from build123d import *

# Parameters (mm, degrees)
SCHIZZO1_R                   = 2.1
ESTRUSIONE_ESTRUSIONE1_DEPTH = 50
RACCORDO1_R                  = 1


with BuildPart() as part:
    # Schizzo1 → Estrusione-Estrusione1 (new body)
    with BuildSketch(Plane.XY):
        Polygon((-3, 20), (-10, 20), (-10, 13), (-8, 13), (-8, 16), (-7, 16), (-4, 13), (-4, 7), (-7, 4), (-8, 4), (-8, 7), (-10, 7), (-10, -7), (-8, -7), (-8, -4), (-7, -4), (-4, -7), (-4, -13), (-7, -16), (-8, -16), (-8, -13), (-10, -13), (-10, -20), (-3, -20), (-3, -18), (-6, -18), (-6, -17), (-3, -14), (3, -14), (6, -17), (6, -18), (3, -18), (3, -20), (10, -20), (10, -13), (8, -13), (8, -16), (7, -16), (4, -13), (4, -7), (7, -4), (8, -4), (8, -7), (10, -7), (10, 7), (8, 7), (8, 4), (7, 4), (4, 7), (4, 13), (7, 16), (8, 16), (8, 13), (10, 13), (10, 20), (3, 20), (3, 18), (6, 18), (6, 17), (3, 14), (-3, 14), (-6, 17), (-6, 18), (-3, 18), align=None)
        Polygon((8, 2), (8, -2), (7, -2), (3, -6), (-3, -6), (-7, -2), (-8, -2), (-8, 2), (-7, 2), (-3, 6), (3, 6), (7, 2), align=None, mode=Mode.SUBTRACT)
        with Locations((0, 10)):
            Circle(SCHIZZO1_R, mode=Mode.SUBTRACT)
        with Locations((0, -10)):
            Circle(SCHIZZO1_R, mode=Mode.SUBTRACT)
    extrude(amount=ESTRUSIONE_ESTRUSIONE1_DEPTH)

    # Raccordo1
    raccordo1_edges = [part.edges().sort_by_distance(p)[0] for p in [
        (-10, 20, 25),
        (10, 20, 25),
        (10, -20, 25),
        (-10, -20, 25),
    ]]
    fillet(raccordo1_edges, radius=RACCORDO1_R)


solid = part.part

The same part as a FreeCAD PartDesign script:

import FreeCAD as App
import Part
import Sketcher


def edges_at(feature, points):
    """Names of the edges that pass closest to the given points."""
    edges = feature.Shape.Edges
    near = lambda p: min(range(len(edges)), key=lambda i: edges[i].distToShape(Part.Vertex(*p))[0])
    return sorted({f"Edge{near(p) + 1}" for p in points})

doc = App.newDocument("Part")
body = doc.addObject("PartDesign::Body", "Body")

# Sketch on XY plane
sketch1 = body.newObject("Sketcher::SketchObject", "Sketch")
sketch1.AttachmentSupport = (doc.getObject("XY_Plane"), [""])
sketch1.MapMode = "FlatFace"
sketch1.addGeometry([
    Part.LineSegment(App.Vector(-3, 20, 0), App.Vector(-10, 20, 0)),  # 0
    Part.LineSegment(App.Vector(-10, 20, 0), App.Vector(-10, 13, 0)),  # 1
    Part.LineSegment(App.Vector(-10, 13, 0), App.Vector(-8, 13, 0)),  # 2
    Part.LineSegment(App.Vector(-8, 13, 0), App.Vector(-8, 16, 0)),  # 3
    Part.LineSegment(App.Vector(-8, 16, 0), App.Vector(-7, 16, 0)),  # 4
    Part.LineSegment(App.Vector(-7, 16, 0), App.Vector(-4, 13, 0)),  # 5
    Part.LineSegment(App.Vector(-4, 13, 0), App.Vector(-4, 7, 0)),  # 6
    Part.LineSegment(App.Vector(-4, 7, 0), App.Vector(-7, 4, 0)),  # 7
    Part.LineSegment(App.Vector(-7, 4, 0), App.Vector(-8, 4, 0)),  # 8
    Part.LineSegment(App.Vector(-8, 4, 0), App.Vector(-8, 7, 0)),  # 9
    Part.LineSegment(App.Vector(-8, 7, 0), App.Vector(-10, 7, 0)),  # 10
    Part.LineSegment(App.Vector(-10, 7, 0), App.Vector(-10, -7, 0)),  # 11
    Part.LineSegment(App.Vector(-10, -7, 0), App.Vector(-8, -7, 0)),  # 12
    Part.LineSegment(App.Vector(-8, -7, 0), App.Vector(-8, -4, 0)),  # 13
    Part.LineSegment(App.Vector(-8, -4, 0), App.Vector(-7, -4, 0)),  # 14
    Part.LineSegment(App.Vector(-7, -4, 0), App.Vector(-4, -7, 0)),  # 15
    Part.LineSegment(App.Vector(-4, -7, 0), App.Vector(-4, -13, 0)),  # 16
    Part.LineSegment(App.Vector(-4, -13, 0), App.Vector(-7, -16, 0)),  # 17
    Part.LineSegment(App.Vector(-7, -16, 0), App.Vector(-8, -16, 0)),  # 18
    Part.LineSegment(App.Vector(-8, -16, 0), App.Vector(-8, -13, 0)),  # 19
    Part.LineSegment(App.Vector(-8, -13, 0), App.Vector(-10, -13, 0)),  # 20
    Part.LineSegment(App.Vector(-10, -13, 0), App.Vector(-10, -20, 0)),  # 21
    Part.LineSegment(App.Vector(-10, -20, 0), App.Vector(-3, -20, 0)),  # 22
    Part.LineSegment(App.Vector(-3, -20, 0), App.Vector(-3, -18, 0)),  # 23
    Part.LineSegment(App.Vector(-3, -18, 0), App.Vector(-6, -18, 0)),  # 24
    Part.LineSegment(App.Vector(-6, -18, 0), App.Vector(-6, -17, 0)),  # 25
    Part.LineSegment(App.Vector(-6, -17, 0), App.Vector(-3, -14, 0)),  # 26
    Part.LineSegment(App.Vector(-3, -14, 0), App.Vector(3, -14, 0)),  # 27
    Part.LineSegment(App.Vector(3, -14, 0), App.Vector(6, -17, 0)),  # 28
    Part.LineSegment(App.Vector(6, -17, 0), App.Vector(6, -18, 0)),  # 29
    Part.LineSegment(App.Vector(6, -18, 0), App.Vector(3, -18, 0)),  # 30
    Part.LineSegment(App.Vector(3, -18, 0), App.Vector(3, -20, 0)),  # 31
    Part.LineSegment(App.Vector(3, -20, 0), App.Vector(10, -20, 0)),  # 32
    Part.LineSegment(App.Vector(10, -20, 0), App.Vector(10, -13, 0)),  # 33
    Part.LineSegment(App.Vector(10, -13, 0), App.Vector(8, -13, 0)),  # 34
    Part.LineSegment(App.Vector(8, -13, 0), App.Vector(8, -16, 0)),  # 35
    Part.LineSegment(App.Vector(8, -16, 0), App.Vector(7, -16, 0)),  # 36
    Part.LineSegment(App.Vector(7, -16, 0), App.Vector(4, -13, 0)),  # 37
    Part.LineSegment(App.Vector(4, -13, 0), App.Vector(4, -7, 0)),  # 38
    Part.LineSegment(App.Vector(4, -7, 0), App.Vector(7, -4, 0)),  # 39
    Part.LineSegment(App.Vector(7, -4, 0), App.Vector(8, -4, 0)),  # 40
    Part.LineSegment(App.Vector(8, -4, 0), App.Vector(8, -7, 0)),  # 41
    Part.LineSegment(App.Vector(8, -7, 0), App.Vector(10, -7, 0)),  # 42
    Part.LineSegment(App.Vector(10, -7, 0), App.Vector(10, 7, 0)),  # 43
    Part.LineSegment(App.Vector(10, 7, 0), App.Vector(8, 7, 0)),  # 44
    Part.LineSegment(App.Vector(8, 7, 0), App.Vector(8, 4, 0)),  # 45
    Part.LineSegment(App.Vector(8, 4, 0), App.Vector(7, 4, 0)),  # 46
    Part.LineSegment(App.Vector(7, 4, 0), App.Vector(4, 7, 0)),  # 47
    Part.LineSegment(App.Vector(4, 7, 0), App.Vector(4, 13, 0)),  # 48
    Part.LineSegment(App.Vector(4, 13, 0), App.Vector(7, 16, 0)),  # 49
    Part.LineSegment(App.Vector(7, 16, 0), App.Vector(8, 16, 0)),  # 50
    Part.LineSegment(App.Vector(8, 16, 0), App.Vector(8, 13, 0)),  # 51
    Part.LineSegment(App.Vector(8, 13, 0), App.Vector(10, 13, 0)),  # 52
    Part.LineSegment(App.Vector(10, 13, 0), App.Vector(10, 20, 0)),  # 53
    Part.LineSegment(App.Vector(10, 20, 0), App.Vector(3, 20, 0)),  # 54
    Part.LineSegment(App.Vector(3, 20, 0), App.Vector(3, 18, 0)),  # 55
    Part.LineSegment(App.Vector(3, 18, 0), App.Vector(6, 18, 0)),  # 56
    Part.LineSegment(App.Vector(6, 18, 0), App.Vector(6, 17, 0)),  # 57
    Part.LineSegment(App.Vector(6, 17, 0), App.Vector(3, 14, 0)),  # 58
    Part.LineSegment(App.Vector(3, 14, 0), App.Vector(-3, 14, 0)),  # 59
    Part.LineSegment(App.Vector(-3, 14, 0), App.Vector(-6, 17, 0)),  # 60
    Part.LineSegment(App.Vector(-6, 17, 0), App.Vector(-6, 18, 0)),  # 61
    Part.LineSegment(App.Vector(-6, 18, 0), App.Vector(-3, 18, 0)),  # 62
    Part.LineSegment(App.Vector(-3, 18, 0), App.Vector(-3, 20, 0)),  # 63
    Part.Circle(App.Vector(0, -10, 0), App.Vector(0, 0, 1), 2.1),  # 64
    Part.LineSegment(App.Vector(7, 2, 0), App.Vector(8, 2, 0)),  # 65
    Part.LineSegment(App.Vector(8, 2, 0), App.Vector(8, -2, 0)),  # 66
    Part.LineSegment(App.Vector(8, -2, 0), App.Vector(7, -2, 0)),  # 67
    Part.LineSegment(App.Vector(7, -2, 0), App.Vector(3, -6, 0)),  # 68
    Part.LineSegment(App.Vector(3, -6, 0), App.Vector(-3, -6, 0)),  # 69
    Part.LineSegment(App.Vector(-3, -6, 0), App.Vector(-7, -2, 0)),  # 70
    Part.LineSegment(App.Vector(-7, -2, 0), App.Vector(-8, -2, 0)),  # 71
    Part.LineSegment(App.Vector(-8, -2, 0), App.Vector(-8, 2, 0)),  # 72
    Part.LineSegment(App.Vector(-8, 2, 0), App.Vector(-7, 2, 0)),  # 73
    Part.LineSegment(App.Vector(-7, 2, 0), App.Vector(-3, 6, 0)),  # 74
    Part.LineSegment(App.Vector(-3, 6, 0), App.Vector(3, 6, 0)),  # 75
    Part.LineSegment(App.Vector(3, 6, 0), App.Vector(7, 2, 0)),  # 76
    Part.Circle(App.Vector(0, 10, 0), App.Vector(0, 0, 1), 2.1),  # 77
], False)
sketch1.addConstraint([
    Sketcher.Constraint("Coincident", 0, 2, 1, 1),
    Sketcher.Constraint("Coincident", 1, 2, 2, 1),
    Sketcher.Constraint("Coincident", 2, 2, 3, 1),
    Sketcher.Constraint("Coincident", 3, 2, 4, 1),
    Sketcher.Constraint("Coincident", 4, 2, 5, 1),
    Sketcher.Constraint("Coincident", 5, 2, 6, 1),
    Sketcher.Constraint("Coincident", 6, 2, 7, 1),
    Sketcher.Constraint("Coincident", 7, 2, 8, 1),
    Sketcher.Constraint("Coincident", 8, 2, 9, 1),
    Sketcher.Constraint("Coincident", 9, 2, 10, 1),
    Sketcher.Constraint("Coincident", 10, 2, 11, 1),
    Sketcher.Constraint("Coincident", 11, 2, 12, 1),
    Sketcher.Constraint("Coincident", 12, 2, 13, 1),
    Sketcher.Constraint("Coincident", 13, 2, 14, 1),
    Sketcher.Constraint("Coincident", 14, 2, 15, 1),
    Sketcher.Constraint("Coincident", 15, 2, 16, 1),
    Sketcher.Constraint("Coincident", 16, 2, 17, 1),
    Sketcher.Constraint("Coincident", 17, 2, 18, 1),
    Sketcher.Constraint("Coincident", 18, 2, 19, 1),
    Sketcher.Constraint("Coincident", 19, 2, 20, 1),
    Sketcher.Constraint("Coincident", 20, 2, 21, 1),
    Sketcher.Constraint("Coincident", 21, 2, 22, 1),
    Sketcher.Constraint("Coincident", 22, 2, 23, 1),
    Sketcher.Constraint("Coincident", 23, 2, 24, 1),
    Sketcher.Constraint("Coincident", 24, 2, 25, 1),
    Sketcher.Constraint("Coincident", 25, 2, 26, 1),
    Sketcher.Constraint("Coincident", 26, 2, 27, 1),
    Sketcher.Constraint("Coincident", 27, 2, 28, 1),
    Sketcher.Constraint("Coincident", 28, 2, 29, 1),
    Sketcher.Constraint("Coincident", 29, 2, 30, 1),
    Sketcher.Constraint("Coincident", 30, 2, 31, 1),
    Sketcher.Constraint("Coincident", 31, 2, 32, 1),
    Sketcher.Constraint("Coincident", 32, 2, 33, 1),
    Sketcher.Constraint("Coincident", 33, 2, 34, 1),
    Sketcher.Constraint("Coincident", 34, 2, 35, 1),
    Sketcher.Constraint("Coincident", 35, 2, 36, 1),
    Sketcher.Constraint("Coincident", 36, 2, 37, 1),
    Sketcher.Constraint("Coincident", 37, 2, 38, 1),
    Sketcher.Constraint("Coincident", 38, 2, 39, 1),
    Sketcher.Constraint("Coincident", 39, 2, 40, 1),
    Sketcher.Constraint("Coincident", 40, 2, 41, 1),
    Sketcher.Constraint("Coincident", 41, 2, 42, 1),
    Sketcher.Constraint("Coincident", 42, 2, 43, 1),
    Sketcher.Constraint("Coincident", 43, 2, 44, 1),
    Sketcher.Constraint("Coincident", 44, 2, 45, 1),
    Sketcher.Constraint("Coincident", 45, 2, 46, 1),
    Sketcher.Constraint("Coincident", 46, 2, 47, 1),
    Sketcher.Constraint("Coincident", 47, 2, 48, 1),
    Sketcher.Constraint("Coincident", 48, 2, 49, 1),
    Sketcher.Constraint("Coincident", 49, 2, 50, 1),
    Sketcher.Constraint("Coincident", 50, 2, 51, 1),
    Sketcher.Constraint("Coincident", 51, 2, 52, 1),
    Sketcher.Constraint("Coincident", 52, 2, 53, 1),
    Sketcher.Constraint("Coincident", 53, 2, 54, 1),
    Sketcher.Constraint("Coincident", 54, 2, 55, 1),
    Sketcher.Constraint("Coincident", 55, 2, 56, 1),
    Sketcher.Constraint("Coincident", 56, 2, 57, 1),
    Sketcher.Constraint("Coincident", 57, 2, 58, 1),
    Sketcher.Constraint("Coincident", 58, 2, 59, 1),
    Sketcher.Constraint("Coincident", 59, 2, 60, 1),
    Sketcher.Constraint("Coincident", 60, 2, 61, 1),
    Sketcher.Constraint("Coincident", 61, 2, 62, 1),
    Sketcher.Constraint("Coincident", 62, 2, 63, 1),
    Sketcher.Constraint("Coincident", 63, 2, 0, 1),
    Sketcher.Constraint("Coincident", 65, 2, 66, 1),
    Sketcher.Constraint("Coincident", 66, 2, 67, 1),
    Sketcher.Constraint("Coincident", 67, 2, 68, 1),
    Sketcher.Constraint("Coincident", 68, 2, 69, 1),
    Sketcher.Constraint("Coincident", 69, 2, 70, 1),
    Sketcher.Constraint("Coincident", 70, 2, 71, 1),
    Sketcher.Constraint("Coincident", 71, 2, 72, 1),
    Sketcher.Constraint("Coincident", 72, 2, 73, 1),
    Sketcher.Constraint("Coincident", 73, 2, 74, 1),
    Sketcher.Constraint("Coincident", 74, 2, 75, 1),
    Sketcher.Constraint("Coincident", 75, 2, 76, 1),
    Sketcher.Constraint("Coincident", 76, 2, 65, 1),
    Sketcher.Constraint("Horizontal", 0),
    Sketcher.Constraint("Vertical", 1),
    Sketcher.Constraint("Horizontal", 2),
    Sketcher.Constraint("Vertical", 3),
    Sketcher.Constraint("Horizontal", 4),
    Sketcher.Constraint("Vertical", 6),
    Sketcher.Constraint("Horizontal", 8),
    Sketcher.Constraint("Vertical", 9),
    Sketcher.Constraint("Horizontal", 10),
    Sketcher.Constraint("Vertical", 11),
    Sketcher.Constraint("Horizontal", 12),
    Sketcher.Constraint("Vertical", 13),
    Sketcher.Constraint("Horizontal", 14),
    Sketcher.Constraint("Vertical", 16),
    Sketcher.Constraint("Horizontal", 18),
    Sketcher.Constraint("Vertical", 19),
    Sketcher.Constraint("Horizontal", 20),
    Sketcher.Constraint("Vertical", 21),
    Sketcher.Constraint("Horizontal", 22),
    Sketcher.Constraint("Vertical", 23),
    Sketcher.Constraint("Horizontal", 24),
    Sketcher.Constraint("Vertical", 25),
    Sketcher.Constraint("Horizontal", 27),
    Sketcher.Constraint("Vertical", 29),
    Sketcher.Constraint("Horizontal", 30),
    Sketcher.Constraint("Vertical", 31),
    Sketcher.Constraint("Horizontal", 32),
    Sketcher.Constraint("Vertical", 33),
    Sketcher.Constraint("Horizontal", 34),
    Sketcher.Constraint("Vertical", 35),
    Sketcher.Constraint("Horizontal", 36),
    Sketcher.Constraint("Vertical", 38),
    Sketcher.Constraint("Horizontal", 40),
    Sketcher.Constraint("Vertical", 41),
    Sketcher.Constraint("Horizontal", 42),
    Sketcher.Constraint("Vertical", 43),
    Sketcher.Constraint("Horizontal", 44),
    Sketcher.Constraint("Vertical", 45),
    Sketcher.Constraint("Horizontal", 46),
    Sketcher.Constraint("Vertical", 48),
    Sketcher.Constraint("Horizontal", 50),
    Sketcher.Constraint("Vertical", 51),
    Sketcher.Constraint("Horizontal", 52),
    Sketcher.Constraint("Vertical", 53),
    Sketcher.Constraint("Horizontal", 54),
    Sketcher.Constraint("Vertical", 55),
    Sketcher.Constraint("Horizontal", 56),
    Sketcher.Constraint("Vertical", 57),
    Sketcher.Constraint("Horizontal", 59),
    Sketcher.Constraint("Vertical", 61),
    Sketcher.Constraint("Horizontal", 62),
    Sketcher.Constraint("Vertical", 63),
    Sketcher.Constraint("Horizontal", 65),
    Sketcher.Constraint("Vertical", 66),
    Sketcher.Constraint("Horizontal", 67),
    Sketcher.Constraint("Horizontal", 69),
    Sketcher.Constraint("Horizontal", 71),
    Sketcher.Constraint("Vertical", 72),
    Sketcher.Constraint("Horizontal", 73),
    Sketcher.Constraint("Horizontal", 75),
    Sketcher.Constraint("Equal", 64, 77),
    Sketcher.Constraint("Symmetric", 64, 3, 77, 3, -1, 1),
    Sketcher.Constraint("Symmetric", 0, 2, 32, 2, -1, 1),
    Sketcher.Constraint("Symmetric", 2, 2, 34, 2, -1, 1),
    Sketcher.Constraint("Symmetric", 4, 2, 36, 2, -1, 1),
    Sketcher.Constraint("Symmetric", 5, 2, 37, 2, -1, 1),
    Sketcher.Constraint("Symmetric", 7, 2, 39, 2, -1, 1),
    Sketcher.Constraint("Symmetric", 9, 2, 41, 2, -1, 1),
    Sketcher.Constraint("Symmetric", 11, 2, 43, 2, -1, 1),
    Sketcher.Constraint("Symmetric", 13, 2, 45, 2, -1, 1),
    Sketcher.Constraint("Symmetric", 15, 2, 47, 2, -1, 1),
    Sketcher.Constraint("Symmetric", 17, 2, 49, 2, -1, 1),
    Sketcher.Constraint("Symmetric", 19, 2, 51, 2, -1, 1),
    Sketcher.Constraint("Symmetric", 21, 2, 53, 2, -1, 1),
    Sketcher.Constraint("Symmetric", 23, 2, 55, 2, -1, 1),
    Sketcher.Constraint("Symmetric", 25, 2, 57, 2, -1, 1),
    Sketcher.Constraint("Symmetric", 26, 2, 58, 2, -1, 1),
    Sketcher.Constraint("Symmetric", 28, 2, 60, 2, -1, 1),
    Sketcher.Constraint("Symmetric", 30, 2, 62, 2, -1, 1),
    Sketcher.Constraint("Symmetric", 65, 2, 71, 2, -1, 1),
    Sketcher.Constraint("Symmetric", 67, 2, 73, 2, -1, 1),
    Sketcher.Constraint("Symmetric", 68, 2, 74, 2, -1, 1),
    Sketcher.Constraint("Symmetric", 25, 2, 28, 2, -2),
    Sketcher.Constraint("Symmetric", 23, 2, 30, 2, -2),
    Sketcher.Constraint("Symmetric", 21, 2, 32, 2, -2),
    Sketcher.Constraint("Symmetric", 19, 2, 34, 2, -2),
    Sketcher.Constraint("Symmetric", 17, 2, 36, 2, -2),
    Sketcher.Constraint("Symmetric", 16, 2, 37, 2, -2),
    Sketcher.Constraint("Symmetric", 14, 2, 39, 2, -2),
    Sketcher.Constraint("Symmetric", 12, 2, 41, 2, -2),
    Sketcher.Constraint("Symmetric", 67, 2, 70, 2, -2),
    Sketcher.Constraint("PointOnObject", 64, 3, -2),
    Sketcher.Constraint("Perpendicular", 5, 7),
    Sketcher.Constraint("Perpendicular", 7, 15),
    Sketcher.Constraint("Perpendicular", 15, 17),
    Sketcher.Constraint("Parallel", 17, 26),
    Sketcher.Constraint("Perpendicular", 26, 28),
    Sketcher.Constraint("Perpendicular", 37, 39),
    Sketcher.Constraint("Perpendicular", 39, 47),
    Sketcher.Constraint("Perpendicular", 47, 49),
    Sketcher.Constraint("Perpendicular", 58, 60),
    Sketcher.Constraint("Perpendicular", 60, 68),
    Sketcher.Constraint("Perpendicular", 68, 70),
    Sketcher.Constraint("Perpendicular", 74, 76),
    Sketcher.Constraint("Horizontal", 2, 2, 5, 2),
    Sketcher.Constraint("Horizontal", 6, 2, 9, 2),
    Sketcher.Constraint("Vertical", 4, 2, 7, 2),
    Sketcher.Constraint("Vertical", 3, 2, 8, 2),
    Sketcher.Constraint("Vertical", 1, 2, 10, 2),
    Sketcher.Constraint("Vertical", 23, 2, 26, 2),
    Sketcher.Constraint("Vertical", 51, 2, 65, 2),
    Sketcher.Constraint("Vertical", 49, 2, 67, 2),
    Sketcher.Constraint("Vertical", 58, 2, 68, 2),
    Sketcher.Constraint("Vertical", 68, 2, 75, 2),
    Sketcher.Constraint("Equal", 54, 1),
    Sketcher.Constraint("Equal", 62, 3),
    Sketcher.Constraint("Equal", 75, 6),
    Sketcher.Constraint("Equal", 52, 23),
    Sketcher.Constraint("Equal", 73, 25),
    Sketcher.Constraint("Diameter", 64, 4.2),
    Sketcher.Constraint("DistanceX", 0, 2, 0, 1, 7.0),
    Sketcher.Constraint("DistanceX", 2, 1, 2, 2, 2.0),
    Sketcher.Constraint("DistanceX", 4, 1, 4, 2, 1.0),
    Sketcher.Constraint("DistanceX", 24, 2, 24, 1, 3.0),
    Sketcher.Constraint("DistanceX", 27, 1, 27, 2, 6.0),
    Sketcher.Constraint("DistanceY", 11, 2, 11, 1, 14.0),
    Sketcher.Constraint("DistanceY", 66, 2, 66, 1, 4.0),
    Sketcher.Constraint("DistanceY", 64, 3, -1, 1, 10.0),
])
pad1 = body.newObject("PartDesign::Pad", "Pad")
pad1.Profile = sketch1
pad1.Length = 50
doc.recompute()

fillet = body.newObject("PartDesign::Fillet", "Fillet")
fillet.Base = (pad1, edges_at(pad1, [
    (-10, 20, 25),
    (10, 20, 25),
    (10, -20, 25),
    (-10, -20, 25),
]))
fillet.Radius = 1

doc.recompute()
